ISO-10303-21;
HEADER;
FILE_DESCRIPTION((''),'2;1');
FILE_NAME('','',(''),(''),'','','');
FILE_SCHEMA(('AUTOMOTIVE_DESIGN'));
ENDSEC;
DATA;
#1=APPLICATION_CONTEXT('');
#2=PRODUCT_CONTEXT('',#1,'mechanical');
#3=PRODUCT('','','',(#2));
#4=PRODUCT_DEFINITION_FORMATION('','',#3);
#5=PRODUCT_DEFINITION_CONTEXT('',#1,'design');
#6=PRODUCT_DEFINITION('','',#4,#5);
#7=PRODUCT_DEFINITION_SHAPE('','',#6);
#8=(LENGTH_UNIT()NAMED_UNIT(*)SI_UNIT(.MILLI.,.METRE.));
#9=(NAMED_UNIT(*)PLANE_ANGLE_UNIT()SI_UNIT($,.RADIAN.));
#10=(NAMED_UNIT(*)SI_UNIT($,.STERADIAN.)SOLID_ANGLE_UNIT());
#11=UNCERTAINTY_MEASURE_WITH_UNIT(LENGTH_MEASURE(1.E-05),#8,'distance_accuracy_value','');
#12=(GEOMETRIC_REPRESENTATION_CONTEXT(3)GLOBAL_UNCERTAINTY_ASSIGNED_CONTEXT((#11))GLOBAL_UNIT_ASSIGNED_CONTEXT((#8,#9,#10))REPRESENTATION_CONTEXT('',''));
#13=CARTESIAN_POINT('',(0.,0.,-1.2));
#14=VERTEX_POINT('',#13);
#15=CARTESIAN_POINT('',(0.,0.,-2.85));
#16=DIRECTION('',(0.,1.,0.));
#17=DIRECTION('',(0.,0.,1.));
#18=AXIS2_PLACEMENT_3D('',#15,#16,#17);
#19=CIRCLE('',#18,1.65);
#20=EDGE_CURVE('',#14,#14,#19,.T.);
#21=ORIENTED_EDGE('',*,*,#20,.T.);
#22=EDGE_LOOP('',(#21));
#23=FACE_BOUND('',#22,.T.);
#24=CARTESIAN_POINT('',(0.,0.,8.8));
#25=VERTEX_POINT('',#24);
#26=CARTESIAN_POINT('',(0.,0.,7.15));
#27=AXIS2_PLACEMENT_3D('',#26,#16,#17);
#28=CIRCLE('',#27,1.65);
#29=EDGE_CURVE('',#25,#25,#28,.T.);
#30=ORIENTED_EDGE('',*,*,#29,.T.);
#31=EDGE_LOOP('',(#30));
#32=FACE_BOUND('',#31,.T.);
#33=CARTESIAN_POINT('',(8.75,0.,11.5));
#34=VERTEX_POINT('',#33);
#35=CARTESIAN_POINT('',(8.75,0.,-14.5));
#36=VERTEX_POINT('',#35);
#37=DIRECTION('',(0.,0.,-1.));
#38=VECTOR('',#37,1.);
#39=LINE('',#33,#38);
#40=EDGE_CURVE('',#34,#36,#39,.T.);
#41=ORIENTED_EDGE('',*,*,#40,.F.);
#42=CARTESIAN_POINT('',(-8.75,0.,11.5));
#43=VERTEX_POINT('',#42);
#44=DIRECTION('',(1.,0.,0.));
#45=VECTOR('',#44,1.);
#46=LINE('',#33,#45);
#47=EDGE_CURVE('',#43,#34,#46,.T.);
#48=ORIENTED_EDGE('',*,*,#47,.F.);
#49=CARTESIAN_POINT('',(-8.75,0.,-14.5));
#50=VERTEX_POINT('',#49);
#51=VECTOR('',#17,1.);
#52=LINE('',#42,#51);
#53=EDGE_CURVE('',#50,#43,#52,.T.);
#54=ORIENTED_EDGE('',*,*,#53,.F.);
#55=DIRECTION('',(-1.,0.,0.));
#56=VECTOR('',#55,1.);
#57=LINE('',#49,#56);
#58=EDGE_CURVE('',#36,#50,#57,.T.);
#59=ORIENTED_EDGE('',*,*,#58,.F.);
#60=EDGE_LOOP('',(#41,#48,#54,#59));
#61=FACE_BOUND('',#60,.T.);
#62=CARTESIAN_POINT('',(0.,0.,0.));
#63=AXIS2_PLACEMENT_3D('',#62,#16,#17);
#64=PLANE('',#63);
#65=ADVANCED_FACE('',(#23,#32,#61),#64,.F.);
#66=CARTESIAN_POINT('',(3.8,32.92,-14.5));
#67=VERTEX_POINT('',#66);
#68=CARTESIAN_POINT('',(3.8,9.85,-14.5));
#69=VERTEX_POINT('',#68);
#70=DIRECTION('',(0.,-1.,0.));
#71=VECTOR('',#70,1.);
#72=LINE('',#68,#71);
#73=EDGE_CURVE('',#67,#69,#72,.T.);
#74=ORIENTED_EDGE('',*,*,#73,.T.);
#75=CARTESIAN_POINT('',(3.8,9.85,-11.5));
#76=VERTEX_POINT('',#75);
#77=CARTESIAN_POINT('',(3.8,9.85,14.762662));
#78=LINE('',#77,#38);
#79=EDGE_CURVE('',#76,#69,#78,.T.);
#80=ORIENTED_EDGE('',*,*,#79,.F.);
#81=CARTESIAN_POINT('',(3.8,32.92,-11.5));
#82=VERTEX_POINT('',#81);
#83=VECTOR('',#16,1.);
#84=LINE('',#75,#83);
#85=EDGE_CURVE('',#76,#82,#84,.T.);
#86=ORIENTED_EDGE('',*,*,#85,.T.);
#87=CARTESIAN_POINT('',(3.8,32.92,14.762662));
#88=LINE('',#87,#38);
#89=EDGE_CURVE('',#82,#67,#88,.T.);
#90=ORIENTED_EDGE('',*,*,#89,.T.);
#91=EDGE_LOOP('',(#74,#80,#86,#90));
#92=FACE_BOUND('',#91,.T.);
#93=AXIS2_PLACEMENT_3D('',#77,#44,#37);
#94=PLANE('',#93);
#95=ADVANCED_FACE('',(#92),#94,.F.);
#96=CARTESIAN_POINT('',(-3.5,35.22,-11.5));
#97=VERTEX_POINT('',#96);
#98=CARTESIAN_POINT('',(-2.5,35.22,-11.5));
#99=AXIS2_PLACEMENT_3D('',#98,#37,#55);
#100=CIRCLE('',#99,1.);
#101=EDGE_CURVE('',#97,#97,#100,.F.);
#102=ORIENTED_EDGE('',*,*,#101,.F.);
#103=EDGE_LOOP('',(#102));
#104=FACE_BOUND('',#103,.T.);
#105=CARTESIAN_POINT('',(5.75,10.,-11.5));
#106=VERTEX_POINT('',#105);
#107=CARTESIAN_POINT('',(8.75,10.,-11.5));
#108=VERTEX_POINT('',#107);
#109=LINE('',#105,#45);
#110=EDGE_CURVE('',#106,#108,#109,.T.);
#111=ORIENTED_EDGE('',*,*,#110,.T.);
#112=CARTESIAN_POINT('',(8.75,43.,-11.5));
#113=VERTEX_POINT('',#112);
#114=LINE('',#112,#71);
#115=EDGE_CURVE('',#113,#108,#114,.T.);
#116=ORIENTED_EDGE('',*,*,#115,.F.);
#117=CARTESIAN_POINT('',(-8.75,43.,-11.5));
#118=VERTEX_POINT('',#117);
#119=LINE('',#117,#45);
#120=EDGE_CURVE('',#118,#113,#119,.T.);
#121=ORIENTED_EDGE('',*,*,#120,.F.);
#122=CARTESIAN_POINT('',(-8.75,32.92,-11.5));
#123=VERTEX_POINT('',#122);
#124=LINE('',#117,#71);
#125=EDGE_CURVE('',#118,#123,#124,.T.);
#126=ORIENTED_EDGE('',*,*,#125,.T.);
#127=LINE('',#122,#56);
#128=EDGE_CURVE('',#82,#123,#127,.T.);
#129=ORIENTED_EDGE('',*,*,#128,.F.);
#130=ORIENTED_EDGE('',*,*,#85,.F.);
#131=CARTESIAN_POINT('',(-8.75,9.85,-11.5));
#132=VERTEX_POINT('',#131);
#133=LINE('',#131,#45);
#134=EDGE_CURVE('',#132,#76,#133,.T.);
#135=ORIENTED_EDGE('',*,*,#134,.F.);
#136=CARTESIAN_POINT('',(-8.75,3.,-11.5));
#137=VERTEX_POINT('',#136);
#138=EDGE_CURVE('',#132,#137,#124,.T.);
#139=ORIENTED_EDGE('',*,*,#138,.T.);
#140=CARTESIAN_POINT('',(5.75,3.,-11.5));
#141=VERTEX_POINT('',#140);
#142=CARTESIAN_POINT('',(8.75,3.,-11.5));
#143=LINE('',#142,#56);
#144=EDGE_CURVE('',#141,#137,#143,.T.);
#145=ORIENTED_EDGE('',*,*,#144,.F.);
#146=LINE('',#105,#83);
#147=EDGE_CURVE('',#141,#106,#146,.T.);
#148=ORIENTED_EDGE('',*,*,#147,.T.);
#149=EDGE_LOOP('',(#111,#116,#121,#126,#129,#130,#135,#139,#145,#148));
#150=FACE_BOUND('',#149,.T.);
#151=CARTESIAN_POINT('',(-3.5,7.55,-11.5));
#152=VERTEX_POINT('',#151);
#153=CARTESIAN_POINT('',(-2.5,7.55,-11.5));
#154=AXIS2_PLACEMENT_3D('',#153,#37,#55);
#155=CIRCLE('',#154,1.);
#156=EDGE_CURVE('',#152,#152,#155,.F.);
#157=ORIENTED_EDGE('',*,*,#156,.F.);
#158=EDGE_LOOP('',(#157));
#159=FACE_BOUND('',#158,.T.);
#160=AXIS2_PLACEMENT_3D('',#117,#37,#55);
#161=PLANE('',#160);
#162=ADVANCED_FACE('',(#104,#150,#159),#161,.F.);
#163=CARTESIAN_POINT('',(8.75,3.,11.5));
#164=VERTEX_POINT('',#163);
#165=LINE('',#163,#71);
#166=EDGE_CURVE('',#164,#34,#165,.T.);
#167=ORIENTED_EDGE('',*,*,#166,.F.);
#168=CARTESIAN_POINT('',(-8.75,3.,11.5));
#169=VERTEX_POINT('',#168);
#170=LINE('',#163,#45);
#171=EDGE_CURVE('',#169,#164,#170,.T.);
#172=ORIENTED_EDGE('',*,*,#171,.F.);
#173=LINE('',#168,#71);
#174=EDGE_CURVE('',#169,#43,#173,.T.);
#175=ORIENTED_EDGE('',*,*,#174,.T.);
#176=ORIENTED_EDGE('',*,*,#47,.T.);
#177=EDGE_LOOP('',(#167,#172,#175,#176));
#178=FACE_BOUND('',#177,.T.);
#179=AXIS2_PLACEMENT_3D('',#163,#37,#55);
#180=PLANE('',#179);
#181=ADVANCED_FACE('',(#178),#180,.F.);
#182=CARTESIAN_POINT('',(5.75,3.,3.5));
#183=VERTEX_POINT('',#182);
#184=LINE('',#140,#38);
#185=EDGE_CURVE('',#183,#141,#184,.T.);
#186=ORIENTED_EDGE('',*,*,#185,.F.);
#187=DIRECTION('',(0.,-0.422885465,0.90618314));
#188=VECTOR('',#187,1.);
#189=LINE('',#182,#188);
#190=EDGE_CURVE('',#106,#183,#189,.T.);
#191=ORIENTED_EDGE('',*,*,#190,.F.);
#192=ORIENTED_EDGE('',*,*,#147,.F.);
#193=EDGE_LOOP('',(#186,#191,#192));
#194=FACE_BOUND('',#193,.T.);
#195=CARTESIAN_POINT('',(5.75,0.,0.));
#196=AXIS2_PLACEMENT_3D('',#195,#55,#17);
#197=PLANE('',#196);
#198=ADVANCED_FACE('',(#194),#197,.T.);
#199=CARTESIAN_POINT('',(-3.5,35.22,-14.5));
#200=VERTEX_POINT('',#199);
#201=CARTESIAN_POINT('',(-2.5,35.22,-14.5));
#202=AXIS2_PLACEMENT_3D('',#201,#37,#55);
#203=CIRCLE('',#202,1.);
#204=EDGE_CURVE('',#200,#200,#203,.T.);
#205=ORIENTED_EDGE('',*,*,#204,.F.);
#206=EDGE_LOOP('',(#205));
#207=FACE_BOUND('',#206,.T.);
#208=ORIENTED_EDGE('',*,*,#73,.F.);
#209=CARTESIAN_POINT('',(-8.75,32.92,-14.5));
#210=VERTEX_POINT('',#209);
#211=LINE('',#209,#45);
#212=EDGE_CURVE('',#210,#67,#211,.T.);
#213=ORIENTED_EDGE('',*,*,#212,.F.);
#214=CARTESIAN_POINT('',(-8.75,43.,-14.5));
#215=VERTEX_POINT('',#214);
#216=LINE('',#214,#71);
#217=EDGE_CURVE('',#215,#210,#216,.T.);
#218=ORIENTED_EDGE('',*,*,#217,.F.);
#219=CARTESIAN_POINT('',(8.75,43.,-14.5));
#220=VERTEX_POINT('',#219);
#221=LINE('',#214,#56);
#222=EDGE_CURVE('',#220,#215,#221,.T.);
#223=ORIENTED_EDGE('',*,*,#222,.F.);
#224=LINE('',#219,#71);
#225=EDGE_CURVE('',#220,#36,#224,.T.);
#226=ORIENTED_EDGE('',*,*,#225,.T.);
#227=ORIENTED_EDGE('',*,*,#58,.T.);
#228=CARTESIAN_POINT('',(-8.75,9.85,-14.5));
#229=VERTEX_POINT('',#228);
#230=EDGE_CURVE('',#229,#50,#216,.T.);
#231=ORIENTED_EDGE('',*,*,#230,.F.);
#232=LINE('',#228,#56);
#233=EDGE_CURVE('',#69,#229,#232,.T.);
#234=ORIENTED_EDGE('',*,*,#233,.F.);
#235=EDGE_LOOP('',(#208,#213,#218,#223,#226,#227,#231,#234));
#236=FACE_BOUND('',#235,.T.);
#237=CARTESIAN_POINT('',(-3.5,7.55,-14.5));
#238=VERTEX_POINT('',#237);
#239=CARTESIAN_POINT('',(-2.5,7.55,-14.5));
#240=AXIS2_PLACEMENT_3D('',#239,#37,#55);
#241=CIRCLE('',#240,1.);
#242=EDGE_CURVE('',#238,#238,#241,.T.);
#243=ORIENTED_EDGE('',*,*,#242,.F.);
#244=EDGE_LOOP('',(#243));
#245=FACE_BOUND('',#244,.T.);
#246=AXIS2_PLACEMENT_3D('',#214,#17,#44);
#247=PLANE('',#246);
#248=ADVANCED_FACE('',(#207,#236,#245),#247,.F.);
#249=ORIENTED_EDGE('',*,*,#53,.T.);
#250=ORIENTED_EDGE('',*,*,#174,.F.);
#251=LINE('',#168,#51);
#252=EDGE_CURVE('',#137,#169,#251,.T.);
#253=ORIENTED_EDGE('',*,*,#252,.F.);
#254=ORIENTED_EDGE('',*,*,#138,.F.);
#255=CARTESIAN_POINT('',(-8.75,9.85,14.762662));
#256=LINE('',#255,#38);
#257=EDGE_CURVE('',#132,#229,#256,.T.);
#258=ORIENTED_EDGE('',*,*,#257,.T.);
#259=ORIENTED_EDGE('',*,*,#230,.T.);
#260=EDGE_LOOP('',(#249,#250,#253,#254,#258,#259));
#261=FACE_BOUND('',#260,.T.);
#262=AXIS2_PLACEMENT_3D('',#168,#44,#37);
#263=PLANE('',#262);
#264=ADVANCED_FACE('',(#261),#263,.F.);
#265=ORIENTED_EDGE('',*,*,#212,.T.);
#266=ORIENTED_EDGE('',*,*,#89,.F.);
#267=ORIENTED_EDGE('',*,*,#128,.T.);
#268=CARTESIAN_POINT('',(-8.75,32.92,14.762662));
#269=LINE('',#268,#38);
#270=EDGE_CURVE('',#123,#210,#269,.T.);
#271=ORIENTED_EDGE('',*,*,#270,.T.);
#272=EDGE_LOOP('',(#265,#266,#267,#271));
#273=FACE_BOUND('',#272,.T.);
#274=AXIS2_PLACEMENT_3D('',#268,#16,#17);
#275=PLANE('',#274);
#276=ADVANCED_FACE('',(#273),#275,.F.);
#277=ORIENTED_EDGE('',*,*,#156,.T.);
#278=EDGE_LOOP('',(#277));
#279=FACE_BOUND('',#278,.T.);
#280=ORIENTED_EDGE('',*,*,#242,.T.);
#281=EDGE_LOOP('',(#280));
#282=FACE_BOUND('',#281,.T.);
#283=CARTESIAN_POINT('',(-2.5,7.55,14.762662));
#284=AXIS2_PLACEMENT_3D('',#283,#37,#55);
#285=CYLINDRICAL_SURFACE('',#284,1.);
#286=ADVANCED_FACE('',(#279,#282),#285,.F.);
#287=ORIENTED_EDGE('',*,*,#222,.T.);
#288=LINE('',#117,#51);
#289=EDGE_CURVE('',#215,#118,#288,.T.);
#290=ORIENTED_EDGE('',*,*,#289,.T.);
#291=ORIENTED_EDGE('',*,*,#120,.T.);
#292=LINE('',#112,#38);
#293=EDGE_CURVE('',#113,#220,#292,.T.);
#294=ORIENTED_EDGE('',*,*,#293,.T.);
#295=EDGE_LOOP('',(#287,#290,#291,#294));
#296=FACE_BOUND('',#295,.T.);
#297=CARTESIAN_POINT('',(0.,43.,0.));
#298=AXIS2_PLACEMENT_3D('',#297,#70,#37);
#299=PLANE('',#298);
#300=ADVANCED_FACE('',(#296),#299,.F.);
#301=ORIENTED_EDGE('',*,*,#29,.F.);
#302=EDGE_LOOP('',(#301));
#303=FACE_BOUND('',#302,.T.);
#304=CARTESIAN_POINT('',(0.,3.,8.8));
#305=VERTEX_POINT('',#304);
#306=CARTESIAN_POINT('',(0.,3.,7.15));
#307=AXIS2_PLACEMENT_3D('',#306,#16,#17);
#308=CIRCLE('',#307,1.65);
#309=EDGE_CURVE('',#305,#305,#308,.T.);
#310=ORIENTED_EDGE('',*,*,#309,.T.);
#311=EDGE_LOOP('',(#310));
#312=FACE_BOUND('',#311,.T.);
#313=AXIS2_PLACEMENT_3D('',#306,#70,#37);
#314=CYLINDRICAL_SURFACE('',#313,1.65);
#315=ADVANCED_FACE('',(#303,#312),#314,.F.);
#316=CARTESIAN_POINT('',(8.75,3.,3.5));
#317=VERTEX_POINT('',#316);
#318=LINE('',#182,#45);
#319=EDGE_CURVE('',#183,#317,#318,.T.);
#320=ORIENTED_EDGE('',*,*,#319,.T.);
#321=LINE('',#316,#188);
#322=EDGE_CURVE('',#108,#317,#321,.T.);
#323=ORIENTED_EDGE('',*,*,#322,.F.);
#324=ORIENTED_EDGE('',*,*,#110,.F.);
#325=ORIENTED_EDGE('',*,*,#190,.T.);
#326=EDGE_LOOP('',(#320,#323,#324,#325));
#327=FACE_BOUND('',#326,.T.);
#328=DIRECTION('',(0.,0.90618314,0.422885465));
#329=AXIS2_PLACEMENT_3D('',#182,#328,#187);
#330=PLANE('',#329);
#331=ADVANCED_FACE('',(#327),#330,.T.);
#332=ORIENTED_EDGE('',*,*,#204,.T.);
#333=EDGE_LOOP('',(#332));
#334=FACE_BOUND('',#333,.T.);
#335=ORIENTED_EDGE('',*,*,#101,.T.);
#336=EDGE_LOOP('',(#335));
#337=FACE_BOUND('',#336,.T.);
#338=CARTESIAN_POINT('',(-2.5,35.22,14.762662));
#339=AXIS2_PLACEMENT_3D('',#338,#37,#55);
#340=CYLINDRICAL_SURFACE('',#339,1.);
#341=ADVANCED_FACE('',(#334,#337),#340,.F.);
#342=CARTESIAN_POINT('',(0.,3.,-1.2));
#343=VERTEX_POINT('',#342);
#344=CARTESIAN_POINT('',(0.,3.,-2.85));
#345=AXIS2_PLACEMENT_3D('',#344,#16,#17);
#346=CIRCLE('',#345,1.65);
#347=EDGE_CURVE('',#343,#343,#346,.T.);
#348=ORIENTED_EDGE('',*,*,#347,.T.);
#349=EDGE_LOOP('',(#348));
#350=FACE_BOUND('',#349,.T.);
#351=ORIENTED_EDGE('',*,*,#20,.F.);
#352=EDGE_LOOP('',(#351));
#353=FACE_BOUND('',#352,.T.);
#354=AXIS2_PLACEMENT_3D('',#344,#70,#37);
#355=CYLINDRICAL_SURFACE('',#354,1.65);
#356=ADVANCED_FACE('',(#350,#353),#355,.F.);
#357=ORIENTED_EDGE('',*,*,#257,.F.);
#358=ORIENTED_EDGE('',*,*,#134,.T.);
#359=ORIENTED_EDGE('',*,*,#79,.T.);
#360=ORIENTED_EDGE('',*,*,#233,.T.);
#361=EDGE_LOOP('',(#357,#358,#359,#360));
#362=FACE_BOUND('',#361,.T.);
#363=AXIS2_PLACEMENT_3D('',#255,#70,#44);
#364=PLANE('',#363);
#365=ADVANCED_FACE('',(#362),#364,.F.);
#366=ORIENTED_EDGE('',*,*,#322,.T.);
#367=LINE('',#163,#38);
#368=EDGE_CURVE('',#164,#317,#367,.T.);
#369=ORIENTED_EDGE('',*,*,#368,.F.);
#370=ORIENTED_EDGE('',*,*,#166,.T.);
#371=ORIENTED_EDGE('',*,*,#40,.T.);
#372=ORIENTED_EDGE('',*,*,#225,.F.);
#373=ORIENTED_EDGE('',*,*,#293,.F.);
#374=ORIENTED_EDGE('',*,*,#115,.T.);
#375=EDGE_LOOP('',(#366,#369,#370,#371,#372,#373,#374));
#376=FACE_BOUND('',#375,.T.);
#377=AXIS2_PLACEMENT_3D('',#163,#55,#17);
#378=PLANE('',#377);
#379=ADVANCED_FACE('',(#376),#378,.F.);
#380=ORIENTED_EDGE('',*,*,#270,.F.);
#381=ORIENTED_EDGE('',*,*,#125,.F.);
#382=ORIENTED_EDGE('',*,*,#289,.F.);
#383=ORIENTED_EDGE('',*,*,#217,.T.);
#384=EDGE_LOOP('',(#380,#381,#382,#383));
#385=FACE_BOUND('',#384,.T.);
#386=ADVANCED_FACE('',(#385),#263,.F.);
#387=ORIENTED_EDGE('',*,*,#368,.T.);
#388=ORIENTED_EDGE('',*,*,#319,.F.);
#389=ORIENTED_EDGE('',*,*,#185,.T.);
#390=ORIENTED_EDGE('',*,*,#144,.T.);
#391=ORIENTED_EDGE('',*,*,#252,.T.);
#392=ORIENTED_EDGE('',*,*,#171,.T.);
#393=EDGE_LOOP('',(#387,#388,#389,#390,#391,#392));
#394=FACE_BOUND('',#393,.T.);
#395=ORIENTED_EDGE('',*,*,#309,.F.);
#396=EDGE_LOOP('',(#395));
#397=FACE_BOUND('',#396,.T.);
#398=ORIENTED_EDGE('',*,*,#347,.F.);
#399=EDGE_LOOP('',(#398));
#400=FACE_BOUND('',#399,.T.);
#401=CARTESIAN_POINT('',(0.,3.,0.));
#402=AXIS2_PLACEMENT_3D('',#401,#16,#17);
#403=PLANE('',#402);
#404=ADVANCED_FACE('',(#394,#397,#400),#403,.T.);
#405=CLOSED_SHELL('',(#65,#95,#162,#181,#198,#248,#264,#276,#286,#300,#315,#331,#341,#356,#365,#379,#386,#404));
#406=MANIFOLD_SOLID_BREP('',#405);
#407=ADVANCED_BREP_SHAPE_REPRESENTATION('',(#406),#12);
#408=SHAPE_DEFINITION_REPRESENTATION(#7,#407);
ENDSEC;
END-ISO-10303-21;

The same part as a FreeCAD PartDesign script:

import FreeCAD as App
import Part
import Sketcher
Q = App.Units.Quantity


def add_polygon(sketch, points):
    """Adds a closed chain of lines whose ends are joined by coincident constraints."""
    first, n = sketch.GeometryCount, len(points)
    for a, b in zip(points, points[1:] + points[:1]):
        sketch.addGeometry(Part.LineSegment(App.Vector(*a, 0), App.Vector(*b, 0)), False)
    for i in range(n):
        sketch.addConstraint(Sketcher.Constraint("Coincident", first + i, 2, first + (i + 1) % n, 1))

doc = App.newDocument("Part")
body = doc.addObject("PartDesign::Body", "Body")

sketch1 = body.newObject("Sketcher::SketchObject", "Sketch")
sketch1.AttachmentSupport = (doc.getObject("XZ_Plane"), [""])
sketch1.MapMode = "FlatFace"
add_polygon(sketch1, [(-8.8, -11.5), (-8.8, 11.5), (8.8, 11.5), (8.8, -11.5)])
sketch1.addGeometry(Part.Circle(App.Vector(0, 7.2, 0), App.Vector(0, 0, 1), 1.6), False)
sketch1.addGeometry(Part.Circle(App.Vector(0, -2.9, 0), App.Vector(0, 0, 1), 1.6), False)
sketch1.addConstraint([
    Sketcher.Constraint("Vertical", 0),
    Sketcher.Constraint("Horizontal", 1),
    Sketcher.Constraint("Vertical", 2),
    Sketcher.Constraint("Horizontal", 3),
    Sketcher.Constraint("Equal", 4, 5),
    Sketcher.Constraint("Symmetric", 0, 2, 2, 2, -1, 1),
    Sketcher.Constraint("PointOnObject", 4, 3, -2),
    Sketcher.Constraint("PointOnObject", 5, 3, -2),
    Sketcher.Constraint("Diameter", 4, Q("3.3 mm")),
    Sketcher.Constraint("DistanceY", 0, 1, 0, 2, Q("23 mm")),
    Sketcher.Constraint("DistanceX", 1, 1, 1, 2, Q("17.5 mm")),
    Sketcher.Constraint("DistanceY", 5, 3, 4, 3, Q("10 mm")),
    Sketcher.Constraint("DistanceY", -1, 1, 4, 3, Q("7.15 mm")),
])
pad1 = body.newObject("PartDesign::Pad", "Pad")
pad1.Profile = sketch1
pad1.Length = 3
pad1.Reversed = True

sketch2 = body.newObject("Sketcher::SketchObject", "Sketch001")
sketch2.AttachmentSupport = (doc.getObject("XZ_Plane"), [""])
sketch2.MapMode = "FlatFace"
add_polygon(sketch2, [(-8.8, -14.5), (-8.8, -11.5), (8.8, -11.5), (8.8, -14.5)])
sketch2.addConstraint([
    Sketcher.Constraint("Vertical", 0),
    Sketcher.Constraint("Horizontal", 1),
    Sketcher.Constraint("Vertical", 2),
    Sketcher.Constraint("Horizontal", 3),
    Sketcher.Constraint("DistanceY", 0, 1, 0, 2, Q("3 mm")),
    Sketcher.Constraint("DistanceX", 1, 1, 1, 2, Q("17.5 mm")),
    Sketcher.Constraint("DistanceY", 0, 2, -1, 1, Q("11.5 mm")),
    Sketcher.Constraint("DistanceX", 0, 2, -1, 1, Q("8.75 mm")),
])
pad2 = body.newObject("PartDesign::Pad", "Pad001")
pad2.Profile = sketch2
pad2.Length = 43
pad2.Reversed = True

sketch3 = body.newObject("Sketcher::SketchObject", "Sketch002")
sketch3.AttachmentSupport = (doc.getObject("XY_Plane"), [""])
sketch3.MapMode = "FlatFace"
sketch3.AttachmentOffset = App.Placement(App.Vector(0, 0, -14.5), App.Rotation())
sketch3.addGeometry(Part.Circle(App.Vector(-2.5, 7.5, 0), App.Vector(0, 0, 1), 1), False)
sketch3.addGeometry(Part.Circle(App.Vector(-2.5, 35.2, 0), App.Vector(0, 0, 1), 1), False)
add_polygon(sketch3, [(3.8, 32.9), (3.8, 9.8), (-8.8, 9.8), (-8.8, 32.9)])
sketch3.addConstraint([
    Sketcher.Constraint("Vertical", 2),
    Sketcher.Constraint("Horizontal", 3),
    Sketcher.Constraint("Vertical", 4),
    Sketcher.Constraint("Horizontal", 5),
    Sketcher.Constraint("Equal", 0, 1),
    Sketcher.Constraint("Vertical", 0, 3, 1, 3),
    Sketcher.Constraint("Diameter", 0, Q("2 mm")),
    Sketcher.Constraint("DistanceX", 3, 2, 3, 1, Q("12.55 mm")),
    Sketcher.Constraint("DistanceY", 2, 2, 2, 1, Q("23.07 mm")),
    Sketcher.Constraint("DistanceX", 0, 3, -1, 1, Q("2.5 mm")),
    Sketcher.Constraint("DistanceX", -1, 1, 2, 2, Q("3.8 mm")),
    Sketcher.Constraint("DistanceY", 0, 3, 2, 2, Q("2.3 mm")),
    Sketcher.Constraint("DistanceY", 4, 2, 1, 3, Q("2.3 mm")),
    Sketcher.Constraint("DistanceY", -1, 1, 0, 3, Q("7.55 mm")),
])
pocket1 = body.newObject("PartDesign::Pocket", "Pocket")
pocket1.Profile = sketch3
pocket1.Length = 3
pocket1.Reversed = True

sketch4 = body.newObject("Sketcher::SketchObject", "Sketch003")
sketch4.AttachmentSupport = (doc.getObject("YZ_Plane"), [""])
sketch4.MapMode = "FlatFace"
sketch4.AttachmentOffset = App.Placement(App.Vector(0, 0, 8.75), App.Rotation())
add_polygon(sketch4, [(3, 4), (3, -12), (10, -12)])
sketch4.addConstraint([
    Sketcher.Constraint("Vertical", 0),
    Sketcher.Constraint("Horizontal", 1),
    Sketcher.Constraint("DistanceX", 1, 1, 1, 2, Q("7 mm")),
    Sketcher.Constraint("DistanceY", 0, 2, 0, 1, Q("15 mm")),
    Sketcher.Constraint("DistanceX", -1, 1, 0, 2, Q("3 mm")),
    Sketcher.Constraint("DistanceY", 0, 2, -1, 1, Q("11.5 mm")),
])
pad3 = body.newObject("PartDesign::Pad", "Pad002")
pad3.Profile = sketch4
pad3.Length = 3
pad3.Reversed = True

doc.recompute()
